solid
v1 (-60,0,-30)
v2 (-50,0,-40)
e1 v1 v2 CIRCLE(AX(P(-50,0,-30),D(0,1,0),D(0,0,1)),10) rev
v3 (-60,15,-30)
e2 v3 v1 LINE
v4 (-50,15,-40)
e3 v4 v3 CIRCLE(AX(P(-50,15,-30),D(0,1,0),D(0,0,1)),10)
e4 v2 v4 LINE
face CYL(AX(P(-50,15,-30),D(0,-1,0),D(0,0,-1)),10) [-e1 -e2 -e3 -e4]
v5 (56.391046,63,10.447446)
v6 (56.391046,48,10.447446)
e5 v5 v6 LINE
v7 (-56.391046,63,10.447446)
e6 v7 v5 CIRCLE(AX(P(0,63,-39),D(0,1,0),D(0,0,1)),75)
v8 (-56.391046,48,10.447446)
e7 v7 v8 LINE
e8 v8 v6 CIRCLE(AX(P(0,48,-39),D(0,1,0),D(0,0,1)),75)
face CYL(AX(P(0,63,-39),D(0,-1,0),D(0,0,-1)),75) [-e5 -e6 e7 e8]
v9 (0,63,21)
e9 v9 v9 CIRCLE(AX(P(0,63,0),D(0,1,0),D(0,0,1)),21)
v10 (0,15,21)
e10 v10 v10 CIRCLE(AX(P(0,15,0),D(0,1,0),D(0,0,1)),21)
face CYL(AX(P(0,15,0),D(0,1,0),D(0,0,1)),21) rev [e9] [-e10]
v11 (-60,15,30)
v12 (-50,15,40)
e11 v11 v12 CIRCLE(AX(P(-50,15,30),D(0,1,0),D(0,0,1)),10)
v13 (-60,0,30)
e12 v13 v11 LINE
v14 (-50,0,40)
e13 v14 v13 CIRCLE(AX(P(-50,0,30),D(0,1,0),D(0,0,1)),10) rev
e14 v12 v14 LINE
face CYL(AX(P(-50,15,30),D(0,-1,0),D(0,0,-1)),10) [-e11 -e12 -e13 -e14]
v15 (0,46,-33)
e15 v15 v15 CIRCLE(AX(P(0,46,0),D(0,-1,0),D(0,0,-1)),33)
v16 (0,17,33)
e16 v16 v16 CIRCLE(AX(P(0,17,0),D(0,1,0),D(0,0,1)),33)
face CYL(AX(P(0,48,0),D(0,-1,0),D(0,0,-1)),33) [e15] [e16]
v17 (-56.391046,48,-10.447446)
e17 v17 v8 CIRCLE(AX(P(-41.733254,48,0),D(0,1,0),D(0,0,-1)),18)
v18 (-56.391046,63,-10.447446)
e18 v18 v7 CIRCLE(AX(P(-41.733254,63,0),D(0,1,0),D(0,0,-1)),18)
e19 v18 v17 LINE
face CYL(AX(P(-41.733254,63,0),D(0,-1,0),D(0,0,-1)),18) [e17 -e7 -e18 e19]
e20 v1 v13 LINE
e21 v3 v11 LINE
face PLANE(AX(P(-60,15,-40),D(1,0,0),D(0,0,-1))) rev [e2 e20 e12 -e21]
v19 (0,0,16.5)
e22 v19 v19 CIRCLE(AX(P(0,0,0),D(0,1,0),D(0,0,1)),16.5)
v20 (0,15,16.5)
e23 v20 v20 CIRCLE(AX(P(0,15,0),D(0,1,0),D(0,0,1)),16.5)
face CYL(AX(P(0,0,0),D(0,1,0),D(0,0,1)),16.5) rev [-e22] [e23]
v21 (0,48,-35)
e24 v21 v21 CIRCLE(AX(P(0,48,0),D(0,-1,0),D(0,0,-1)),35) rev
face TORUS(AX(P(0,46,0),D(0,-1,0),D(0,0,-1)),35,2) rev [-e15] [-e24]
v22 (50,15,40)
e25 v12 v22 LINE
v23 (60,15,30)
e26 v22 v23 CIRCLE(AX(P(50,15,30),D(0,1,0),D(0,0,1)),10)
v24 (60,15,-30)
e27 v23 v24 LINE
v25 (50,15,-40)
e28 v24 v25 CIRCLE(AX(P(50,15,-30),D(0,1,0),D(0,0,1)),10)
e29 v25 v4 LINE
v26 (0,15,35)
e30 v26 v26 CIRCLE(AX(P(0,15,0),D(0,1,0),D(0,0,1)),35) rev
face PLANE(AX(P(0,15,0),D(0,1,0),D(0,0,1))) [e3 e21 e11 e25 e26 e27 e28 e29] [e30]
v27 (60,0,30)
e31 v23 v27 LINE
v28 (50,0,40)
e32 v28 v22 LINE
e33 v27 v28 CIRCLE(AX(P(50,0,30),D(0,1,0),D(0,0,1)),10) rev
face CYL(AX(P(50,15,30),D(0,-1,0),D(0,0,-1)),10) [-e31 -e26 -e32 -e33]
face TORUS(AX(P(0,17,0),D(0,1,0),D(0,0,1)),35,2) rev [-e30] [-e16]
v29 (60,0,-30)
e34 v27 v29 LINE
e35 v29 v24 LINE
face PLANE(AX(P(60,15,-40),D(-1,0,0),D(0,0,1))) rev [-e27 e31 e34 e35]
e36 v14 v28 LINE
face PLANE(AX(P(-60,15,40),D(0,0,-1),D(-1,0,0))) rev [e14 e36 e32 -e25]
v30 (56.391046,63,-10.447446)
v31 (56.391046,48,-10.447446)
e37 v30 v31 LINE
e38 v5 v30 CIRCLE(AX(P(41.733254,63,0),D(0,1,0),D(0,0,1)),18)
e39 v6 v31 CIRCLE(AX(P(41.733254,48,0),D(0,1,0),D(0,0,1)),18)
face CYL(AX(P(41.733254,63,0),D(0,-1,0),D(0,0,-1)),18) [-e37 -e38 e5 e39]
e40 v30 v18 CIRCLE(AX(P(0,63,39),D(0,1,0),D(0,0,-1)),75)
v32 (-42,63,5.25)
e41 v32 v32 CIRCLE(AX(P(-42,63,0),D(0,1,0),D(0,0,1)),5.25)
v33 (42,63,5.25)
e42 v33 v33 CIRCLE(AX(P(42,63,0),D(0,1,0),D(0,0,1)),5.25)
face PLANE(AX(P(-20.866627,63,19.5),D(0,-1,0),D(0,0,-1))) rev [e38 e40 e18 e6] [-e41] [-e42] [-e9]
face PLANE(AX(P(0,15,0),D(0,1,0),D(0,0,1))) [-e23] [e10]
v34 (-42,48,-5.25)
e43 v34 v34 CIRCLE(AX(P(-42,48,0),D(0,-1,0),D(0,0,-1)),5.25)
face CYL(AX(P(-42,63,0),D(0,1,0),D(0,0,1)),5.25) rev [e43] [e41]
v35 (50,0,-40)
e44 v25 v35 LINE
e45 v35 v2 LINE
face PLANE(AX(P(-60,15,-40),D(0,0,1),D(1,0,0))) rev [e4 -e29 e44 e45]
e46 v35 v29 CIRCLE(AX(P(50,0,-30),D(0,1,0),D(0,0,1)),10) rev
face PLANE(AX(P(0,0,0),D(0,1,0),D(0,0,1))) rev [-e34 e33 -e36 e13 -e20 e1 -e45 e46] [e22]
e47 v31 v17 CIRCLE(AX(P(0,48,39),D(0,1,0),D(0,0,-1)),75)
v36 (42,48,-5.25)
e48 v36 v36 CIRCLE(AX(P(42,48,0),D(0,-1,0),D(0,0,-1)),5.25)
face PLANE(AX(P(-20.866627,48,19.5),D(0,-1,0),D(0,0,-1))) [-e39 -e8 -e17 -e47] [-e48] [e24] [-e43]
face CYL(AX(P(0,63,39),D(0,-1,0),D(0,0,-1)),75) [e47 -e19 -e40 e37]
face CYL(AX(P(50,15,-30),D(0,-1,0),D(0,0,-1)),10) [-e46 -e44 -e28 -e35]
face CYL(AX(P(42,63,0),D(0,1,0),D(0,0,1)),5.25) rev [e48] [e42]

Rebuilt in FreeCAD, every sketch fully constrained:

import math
import FreeCAD as App
import Part
import Sketcher

V = App.Vector
Q = App.Units.Quantity


def edges_at(feature, points):
    """Names of the edges that pass closest to the given points."""
    edges = feature.Shape.Edges
    near = lambda p: min(range(len(edges)), key=lambda i: edges[i].distToShape(Part.Vertex(*p))[0])
    return sorted({f"Edge{near(p) + 1}" for p in points})

doc = App.newDocument("Part")
body = doc.addObject("PartDesign::Body", "Body")

# Sketch on XZ plane
sketch1 = body.newObject("Sketcher::SketchObject", "Sketch")
sketch1.AttachmentSupport = (doc.getObject("XZ_Plane"), [""])
sketch1.MapMode = "FlatFace"
sketch1.addGeometry(Part.LineSegment(V(-60, -40, 0), V(-60, 40, 0)), False)
sketch1.addGeometry(Part.LineSegment(V(-60, 40, 0), V(60, 40, 0)), False)
sketch1.addGeometry(Part.LineSegment(V(60, 40, 0), V(60, -40, 0)), False)
sketch1.addGeometry(Part.LineSegment(V(60, -40, 0), V(-60, -40, 0)), False)
sketch1.addConstraint(Sketcher.Constraint("Coincident", 0, 2, 1, 1))
sketch1.addConstraint(Sketcher.Constraint("Coincident", 1, 2, 2, 1))
sketch1.addConstraint(Sketcher.Constraint("Coincident", 2, 2, 3, 1))
sketch1.addConstraint(Sketcher.Constraint("Coincident", 3, 2, 0, 1))
sketch1.addConstraint(Sketcher.Constraint("Vertical", 0))
sketch1.addConstraint(Sketcher.Constraint("Horizontal", 1))
sketch1.addConstraint(Sketcher.Constraint("Vertical", 2))
sketch1.addConstraint(Sketcher.Constraint("Horizontal", 3))
sketch1.addConstraint(Sketcher.Constraint("Symmetric", 0, 2, 2, 2, -1, 1))
sketch1.addConstraint(Sketcher.Constraint("DistanceX", 1, 1, 1, 2, Q("120 mm")))
sketch1.addConstraint(Sketcher.Constraint("DistanceY", 0, 1, 0, 2, Q("80 mm")))
pad1 = body.newObject("PartDesign::Pad", "Pad")
pad1.Profile = sketch1
pad1.Length = 15
pad1.Reversed = True

# Sketch on XZ plane
sketch2 = body.newObject("Sketcher::SketchObject", "Sketch001")
sketch2.AttachmentSupport = (doc.getObject("XZ_Plane"), [""])
sketch2.MapMode = "FlatFace"
sketch2.addGeometry(Part.Circle(V(0, 0, 0), V(0, 0, 1), 33), False)
sketch2.addConstraint(Sketcher.Constraint("Coincident", 0, 3, -1, 1))
sketch2.addConstraint(Sketcher.Constraint("Diameter", 0, Q("66 mm")))
pad2 = body.newObject("PartDesign::Pad", "Pad001")
pad2.Profile = sketch2
pad2.Length = 48
pad2.Reversed = True

# Sketch on XZ plane
sketch3 = body.newObject("Sketcher::SketchObject", "Sketch002")
sketch3.AttachmentSupport = (doc.getObject("XZ_Plane"), [""])
sketch3.MapMode = "FlatFace"
sketch3.AttachmentOffset = App.Placement(V(0, 0, -48), App.Rotation())
sketch3.addGeometry(Part.ArcOfCircle(Part.Circle(V(0, 39, 0), V(0, 0, 1), 75), math.radians(-138.753546), math.radians(-41.246454)), False)
sketch3.addGeometry(Part.ArcOfCircle(Part.Circle(V(-41.733254, 0, 0), V(0, 0, 1), 18), math.radians(144.520358), math.radians(215.479642)), False)
sketch3.addGeometry(Part.ArcOfCircle(Part.Circle(V(0, -39, 0), V(0, 0, 1), 75), math.radians(41.246454), math.radians(138.753546)), False)
sketch3.addGeometry(Part.ArcOfCircle(Part.Circle(V(41.733254, 0, 0), V(0, 0, 1), 18), math.radians(-35.479642), math.radians(35.479642)), False)
sketch3.addConstraint(Sketcher.Constraint("Coincident", 0, 1, 1, 2))
sketch3.addConstraint(Sketcher.Constraint("Coincident", 1, 1, 2, 2))
sketch3.addConstraint(Sketcher.Constraint("Coincident", 2, 1, 3, 2))
sketch3.addConstraint(Sketcher.Constraint("Coincident", 3, 1, 0, 2))
sketch3.addConstraint(Sketcher.Constraint("Equal", 0, 2))
sketch3.addConstraint(Sketcher.Constraint("Equal", 1, 3))
sketch3.addConstraint(Sketcher.Constraint("Symmetric", 0, 3, 2, 3, -1, 1))
sketch3.addConstraint(Sketcher.Constraint("Symmetric", 1, 3, 3, 3, -1, 1))
sketch3.addConstraint(Sketcher.Constraint("Symmetric", 1, 1, 2, 1, -2))
sketch3.addConstraint(Sketcher.Constraint("Radius", 0, Q("75 mm")))
sketch3.addConstraint(Sketcher.Constraint("Radius", 1, Q("18 mm")))
sketch3.addConstraint(Sketcher.Constraint("DistanceY", -1, 1, 0, 3, Q("39 mm")))
sketch3.addConstraint(Sketcher.Constraint("DistanceX", 0, 1, 3, 3, Q("98.1243 mm")))
pad3 = body.newObject("PartDesign::Pad", "Pad002")
pad3.Profile = sketch3
pad3.Length = 15
pad3.Reversed = True

# Sketch on XZ plane
sketch4 = body.newObject("Sketcher::SketchObject", "Sketch003")
sketch4.AttachmentSupport = (doc.getObject("XZ_Plane"), [""])
sketch4.MapMode = "FlatFace"
sketch4.AttachmentOffset = App.Placement(V(0, 0, -63), App.Rotation())
sketch4.addGeometry(Part.Circle(V(0, 0, 0), V(0, 0, 1), 21), False)
sketch4.addConstraint(Sketcher.Constraint("Coincident", 0, 3, -1, 1))
sketch4.addConstraint(Sketcher.Constraint("Diameter", 0, Q("42 mm")))
pocket1 = body.newObject("PartDesign::Pocket", "Pocket")
pocket1.Profile = sketch4
pocket1.Length = 48
pocket1.Reversed = True

# Sketch on XZ plane
sketch5 = body.newObject("Sketcher::SketchObject", "Sketch004")
sketch5.AttachmentSupport = (doc.getObject("XZ_Plane"), [""])
sketch5.MapMode = "FlatFace"
sketch5.AttachmentOffset = App.Placement(V(0, 0, -15), App.Rotation())
sketch5.addGeometry(Part.Circle(V(0, 0, 0), V(0, 0, 1), 16.5), False)
sketch5.addConstraint(Sketcher.Constraint("Coincident", 0, 3, -1, 1))
sketch5.addConstraint(Sketcher.Constraint("Diameter", 0, Q("33 mm")))
pocket2 = body.newObject("PartDesign::Pocket", "Pocket001")
pocket2.Profile = sketch5
pocket2.Length = 15
pocket2.Reversed = True

# Sketch on XZ plane
sketch6 = body.newObject("Sketcher::SketchObject", "Sketch005")
sketch6.AttachmentSupport = (doc.getObject("XZ_Plane"), [""])
sketch6.MapMode = "FlatFace"
sketch6.AttachmentOffset = App.Placement(V(0, 0, -63), App.Rotation())
sketch6.addGeometry(Part.Circle(V(-42, 0, 0), V(0, 0, 1), 5.25), False)
sketch6.addGeometry(Part.Circle(V(42, 0, 0), V(0, 0, 1), 5.25), False)
sketch6.addConstraint(Sketcher.Constraint("Equal", 0, 1))
sketch6.addConstraint(Sketcher.Constraint("Symmetric", 0, 3, 1, 3, -1, 1))
sketch6.addConstraint(Sketcher.Constraint("PointOnObject", 0, 3, -1))
sketch6.addConstraint(Sketcher.Constraint("Diameter", 0, Q("10.5 mm")))
sketch6.addConstraint(Sketcher.Constraint("DistanceX", 0, 3, -1, 1, Q("42 mm")))
doc.recompute()
hole = body.newObject("PartDesign::Hole", "Hole")
hole.Profile = sketch6
hole.ThreadType = "None"
hole.Diameter = 10.5
hole.DepthType = "Dimension"
hole.Depth = 15
hole.DrillPoint = "Flat"
hole.Reversed = True
doc.recompute()

fillet = body.newObject("PartDesign::Fillet", "Fillet")
fillet.Base = (hole, edges_at(hole, [(0, 15, -33), (0, 48, -33)]))
fillet.Radius = 2
doc.recompute()

fillet2 = body.newObject("PartDesign::Fillet", "Fillet001")
fillet2.Base = (fillet, edges_at(fillet, [
    (60, 7.5, 40),
    (-60, 7.5, 40),
    (-60, 7.5, -40),
    (60, 7.5, -40),
]))
fillet2.Radius = 10

doc.recompute()
